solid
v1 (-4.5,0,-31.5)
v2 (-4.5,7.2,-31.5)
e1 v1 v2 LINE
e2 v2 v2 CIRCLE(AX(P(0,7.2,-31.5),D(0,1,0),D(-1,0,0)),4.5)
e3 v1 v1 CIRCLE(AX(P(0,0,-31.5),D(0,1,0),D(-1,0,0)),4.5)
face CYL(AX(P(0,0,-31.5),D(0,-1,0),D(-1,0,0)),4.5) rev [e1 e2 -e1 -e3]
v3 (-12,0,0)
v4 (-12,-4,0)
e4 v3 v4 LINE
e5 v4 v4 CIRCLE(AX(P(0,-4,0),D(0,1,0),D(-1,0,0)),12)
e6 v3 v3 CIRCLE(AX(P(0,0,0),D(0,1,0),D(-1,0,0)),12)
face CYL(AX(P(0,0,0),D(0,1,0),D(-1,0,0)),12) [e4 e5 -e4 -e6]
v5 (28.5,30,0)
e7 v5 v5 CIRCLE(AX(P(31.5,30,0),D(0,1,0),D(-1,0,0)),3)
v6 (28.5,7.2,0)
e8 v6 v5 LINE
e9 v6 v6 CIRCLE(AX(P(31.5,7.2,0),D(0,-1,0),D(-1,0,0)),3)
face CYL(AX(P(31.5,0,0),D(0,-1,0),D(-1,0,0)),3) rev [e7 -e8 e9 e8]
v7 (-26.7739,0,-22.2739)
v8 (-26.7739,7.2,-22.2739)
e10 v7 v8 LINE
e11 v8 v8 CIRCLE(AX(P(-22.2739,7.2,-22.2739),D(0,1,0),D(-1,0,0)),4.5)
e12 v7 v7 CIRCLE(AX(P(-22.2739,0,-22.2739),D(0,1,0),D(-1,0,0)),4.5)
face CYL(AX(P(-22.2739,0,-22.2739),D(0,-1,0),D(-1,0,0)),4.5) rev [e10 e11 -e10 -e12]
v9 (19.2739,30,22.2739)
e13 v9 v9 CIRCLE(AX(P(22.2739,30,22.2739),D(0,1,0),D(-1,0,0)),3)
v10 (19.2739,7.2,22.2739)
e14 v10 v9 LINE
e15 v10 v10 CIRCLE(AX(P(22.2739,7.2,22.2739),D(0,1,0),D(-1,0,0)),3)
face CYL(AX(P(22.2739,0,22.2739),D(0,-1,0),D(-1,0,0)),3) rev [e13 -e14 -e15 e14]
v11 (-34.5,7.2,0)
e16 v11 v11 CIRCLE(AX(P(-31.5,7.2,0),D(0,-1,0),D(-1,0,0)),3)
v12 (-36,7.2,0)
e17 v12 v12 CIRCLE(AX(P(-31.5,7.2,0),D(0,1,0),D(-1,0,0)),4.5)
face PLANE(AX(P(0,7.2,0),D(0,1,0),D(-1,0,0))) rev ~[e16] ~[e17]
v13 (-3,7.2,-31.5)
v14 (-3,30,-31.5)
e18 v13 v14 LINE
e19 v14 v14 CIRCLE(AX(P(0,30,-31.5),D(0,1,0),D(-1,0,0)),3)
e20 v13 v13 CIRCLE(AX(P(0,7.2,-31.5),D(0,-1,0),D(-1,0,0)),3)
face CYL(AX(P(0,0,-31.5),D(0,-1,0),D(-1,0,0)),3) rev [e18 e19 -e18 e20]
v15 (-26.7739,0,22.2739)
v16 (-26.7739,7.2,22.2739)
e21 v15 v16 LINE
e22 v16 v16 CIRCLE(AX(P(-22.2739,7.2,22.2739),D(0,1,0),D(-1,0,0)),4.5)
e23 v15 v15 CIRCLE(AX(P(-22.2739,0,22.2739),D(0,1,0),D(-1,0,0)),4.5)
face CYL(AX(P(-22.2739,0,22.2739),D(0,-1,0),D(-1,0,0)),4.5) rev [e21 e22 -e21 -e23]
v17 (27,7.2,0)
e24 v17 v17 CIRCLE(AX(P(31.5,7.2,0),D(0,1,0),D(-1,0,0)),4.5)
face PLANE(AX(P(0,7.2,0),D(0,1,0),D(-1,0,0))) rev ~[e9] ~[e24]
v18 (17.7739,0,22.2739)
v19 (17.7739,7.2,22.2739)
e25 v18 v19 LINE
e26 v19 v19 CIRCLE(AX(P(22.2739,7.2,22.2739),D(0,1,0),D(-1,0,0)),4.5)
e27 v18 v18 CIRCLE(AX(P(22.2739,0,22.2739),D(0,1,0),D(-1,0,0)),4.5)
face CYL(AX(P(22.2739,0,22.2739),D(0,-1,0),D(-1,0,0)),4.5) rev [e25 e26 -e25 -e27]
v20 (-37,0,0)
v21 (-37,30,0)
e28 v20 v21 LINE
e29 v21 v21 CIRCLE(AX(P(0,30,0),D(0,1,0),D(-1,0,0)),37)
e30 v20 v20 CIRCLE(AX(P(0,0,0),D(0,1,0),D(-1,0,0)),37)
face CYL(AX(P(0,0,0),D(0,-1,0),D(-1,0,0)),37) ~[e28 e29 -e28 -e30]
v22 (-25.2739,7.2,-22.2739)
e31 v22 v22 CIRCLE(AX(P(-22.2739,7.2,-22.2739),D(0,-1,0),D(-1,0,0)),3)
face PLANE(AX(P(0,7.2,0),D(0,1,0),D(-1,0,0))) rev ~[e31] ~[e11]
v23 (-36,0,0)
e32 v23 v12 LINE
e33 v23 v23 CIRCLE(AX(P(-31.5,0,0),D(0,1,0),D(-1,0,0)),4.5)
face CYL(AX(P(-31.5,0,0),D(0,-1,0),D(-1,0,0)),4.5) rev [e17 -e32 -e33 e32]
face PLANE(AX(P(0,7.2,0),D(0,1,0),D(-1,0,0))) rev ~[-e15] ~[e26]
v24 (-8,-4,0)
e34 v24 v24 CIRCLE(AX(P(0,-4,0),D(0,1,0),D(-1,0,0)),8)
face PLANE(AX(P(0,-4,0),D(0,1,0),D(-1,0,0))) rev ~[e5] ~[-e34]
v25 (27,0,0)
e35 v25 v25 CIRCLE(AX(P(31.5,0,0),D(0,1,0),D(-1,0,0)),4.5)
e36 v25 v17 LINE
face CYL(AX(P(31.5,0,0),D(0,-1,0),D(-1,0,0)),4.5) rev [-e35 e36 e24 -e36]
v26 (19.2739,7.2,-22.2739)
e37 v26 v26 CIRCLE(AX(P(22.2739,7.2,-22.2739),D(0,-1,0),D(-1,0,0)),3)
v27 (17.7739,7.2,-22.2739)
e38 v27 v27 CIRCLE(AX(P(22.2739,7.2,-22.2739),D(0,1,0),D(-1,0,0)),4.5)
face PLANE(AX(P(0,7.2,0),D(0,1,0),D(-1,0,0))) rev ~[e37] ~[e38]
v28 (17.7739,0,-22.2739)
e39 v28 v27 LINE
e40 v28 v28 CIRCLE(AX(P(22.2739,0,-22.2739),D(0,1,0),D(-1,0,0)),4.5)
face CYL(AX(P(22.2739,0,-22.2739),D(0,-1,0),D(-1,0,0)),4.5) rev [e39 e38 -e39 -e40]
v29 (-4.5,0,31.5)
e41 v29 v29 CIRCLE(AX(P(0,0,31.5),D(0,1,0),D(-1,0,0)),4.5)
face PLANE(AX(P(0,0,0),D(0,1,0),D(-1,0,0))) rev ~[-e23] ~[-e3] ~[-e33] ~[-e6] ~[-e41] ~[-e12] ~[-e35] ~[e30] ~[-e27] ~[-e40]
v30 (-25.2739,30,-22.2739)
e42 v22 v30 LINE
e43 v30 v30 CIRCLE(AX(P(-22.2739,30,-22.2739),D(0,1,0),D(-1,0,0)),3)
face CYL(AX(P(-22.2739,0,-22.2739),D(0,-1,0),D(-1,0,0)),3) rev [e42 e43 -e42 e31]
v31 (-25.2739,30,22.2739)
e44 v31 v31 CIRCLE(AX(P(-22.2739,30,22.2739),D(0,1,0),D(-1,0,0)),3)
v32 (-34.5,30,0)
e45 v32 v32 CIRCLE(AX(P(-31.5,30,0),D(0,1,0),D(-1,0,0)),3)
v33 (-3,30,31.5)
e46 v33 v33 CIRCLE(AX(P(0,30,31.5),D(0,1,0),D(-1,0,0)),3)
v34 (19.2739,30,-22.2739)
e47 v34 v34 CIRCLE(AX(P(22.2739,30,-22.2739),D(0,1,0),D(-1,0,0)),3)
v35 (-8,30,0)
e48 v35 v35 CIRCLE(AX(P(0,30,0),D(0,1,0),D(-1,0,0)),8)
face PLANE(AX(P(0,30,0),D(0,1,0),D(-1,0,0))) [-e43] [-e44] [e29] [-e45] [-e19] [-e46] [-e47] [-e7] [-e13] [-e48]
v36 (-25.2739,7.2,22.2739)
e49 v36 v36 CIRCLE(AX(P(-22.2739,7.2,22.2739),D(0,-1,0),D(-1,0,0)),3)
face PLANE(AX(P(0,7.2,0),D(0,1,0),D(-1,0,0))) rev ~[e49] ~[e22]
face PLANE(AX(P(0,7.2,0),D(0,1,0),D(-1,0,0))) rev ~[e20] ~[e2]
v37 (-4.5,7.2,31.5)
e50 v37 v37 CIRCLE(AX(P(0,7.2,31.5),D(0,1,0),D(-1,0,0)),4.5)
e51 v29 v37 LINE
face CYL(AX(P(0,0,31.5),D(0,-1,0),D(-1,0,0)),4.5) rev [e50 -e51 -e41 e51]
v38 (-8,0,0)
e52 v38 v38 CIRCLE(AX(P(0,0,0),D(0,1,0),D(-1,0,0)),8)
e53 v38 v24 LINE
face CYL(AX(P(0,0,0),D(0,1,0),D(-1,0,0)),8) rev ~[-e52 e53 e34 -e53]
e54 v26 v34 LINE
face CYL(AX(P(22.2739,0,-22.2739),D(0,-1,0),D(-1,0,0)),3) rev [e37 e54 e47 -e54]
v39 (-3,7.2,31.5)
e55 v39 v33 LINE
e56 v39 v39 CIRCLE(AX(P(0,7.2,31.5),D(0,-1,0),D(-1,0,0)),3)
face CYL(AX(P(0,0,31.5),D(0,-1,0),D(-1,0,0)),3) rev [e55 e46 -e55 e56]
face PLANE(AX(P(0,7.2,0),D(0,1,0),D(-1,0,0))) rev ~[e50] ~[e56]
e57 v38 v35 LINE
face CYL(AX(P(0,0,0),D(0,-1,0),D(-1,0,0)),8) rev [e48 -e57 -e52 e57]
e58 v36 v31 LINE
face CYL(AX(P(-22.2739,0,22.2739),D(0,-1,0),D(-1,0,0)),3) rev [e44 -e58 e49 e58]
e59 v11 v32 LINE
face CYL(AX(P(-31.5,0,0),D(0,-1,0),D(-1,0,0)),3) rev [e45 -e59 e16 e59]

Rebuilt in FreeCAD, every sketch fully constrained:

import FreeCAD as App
import Part
import Sketcher
from FreeCAD import Vector

doc = App.newDocument("Part")
body = doc.addObject("PartDesign::Body", "Body")

sketch1 = body.newObject("Sketcher::SketchObject", "Sketch")
sketch1.AttachmentSupport = (doc.getObject("XZ_Plane"), [""])
sketch1.MapMode = "FlatFace"
sketch1.addGeometry(Part.Circle(Vector(0, 0, 0), Vector(0, 0, 1), 37), False)
sketch1.addGeometry(Part.Circle(Vector(22.3, -22.3, 0), Vector(0, 0, 1), 3), False)
sketch1.addGeometry(Part.Circle(Vector(0, -31.5, 0), Vector(0, 0, 1), 3), False)
sketch1.addGeometry(Part.Circle(Vector(-22.3, -22.3, 0), Vector(0, 0, 1), 3), False)
sketch1.addGeometry(Part.Circle(Vector(31.5, 0, 0), Vector(0, 0, 1), 3), False)
sketch1.addGeometry(Part.Circle(Vector(22.3, 22.3, 0), Vector(0, 0, 1), 3), False)
sketch1.addGeometry(Part.Circle(Vector(0, 0, 0), Vector(0, 0, 1), 8), False)
sketch1.addGeometry(Part.Circle(Vector(-31.5, 0, 0), Vector(0, 0, 1), 3), False)
sketch1.addGeometry(Part.Circle(Vector(0, 31.5, 0), Vector(0, 0, 1), 3), False)
sketch1.addGeometry(Part.Circle(Vector(-22.3, 22.3, 0), Vector(0, 0, 1), 3), False)
sketch1.addConstraint(Sketcher.Constraint("Coincident", 0, 3, -1, 1))
sketch1.addConstraint(Sketcher.Constraint("Coincident", 6, 3, -1, 1))
sketch1.addConstraint(Sketcher.Constraint("Equal", 1, 2))
sketch1.addConstraint(Sketcher.Constraint("Equal", 2, 3))
sketch1.addConstraint(Sketcher.Constraint("Equal", 3, 4))
sketch1.addConstraint(Sketcher.Constraint("Equal", 4, 5))
sketch1.addConstraint(Sketcher.Constraint("Equal", 5, 7))
sketch1.addConstraint(Sketcher.Constraint("Equal", 7, 8))
sketch1.addConstraint(Sketcher.Constraint("Equal", 8, 9))
sketch1.addConstraint(Sketcher.Constraint("Symmetric", 3, 3, 5, 3, -1, 1))
sketch1.addConstraint(Sketcher.Constraint("Symmetric", 4, 3, 7, 3, -1, 1))
sketch1.addConstraint(Sketcher.Constraint("Symmetric", 2, 3, 8, 3, -1, 1))
sketch1.addConstraint(Sketcher.Constraint("Symmetric", 1, 3, 9, 3, -1, 1))
sketch1.addConstraint(Sketcher.Constraint("Symmetric", 1, 3, 3, 3, -2))
sketch1.addConstraint(Sketcher.Constraint("PointOnObject", 2, 3, -2))
sketch1.addConstraint(Sketcher.Constraint("PointOnObject", 4, 3, -1))
sketch1.addConstraint(Sketcher.Constraint("Diameter", 0, 74.0))
sketch1.addConstraint(Sketcher.Constraint("Diameter", 1, 6.0))
sketch1.addConstraint(Sketcher.Constraint("Diameter", 6, 16.0))
sketch1.addConstraint(Sketcher.Constraint("DistanceY", 2, 3, -1, 1, 31.5))
sketch1.addConstraint(Sketcher.Constraint("DistanceX", -1, 1, 4, 3, 31.5))
sketch1.addConstraint(Sketcher.Constraint("DistanceX", -1, 1, 1, 3, 22.274))
sketch1.addConstraint(Sketcher.Constraint("DistanceY", 1, 3, -1, 1, 22.274))
pad1 = body.newObject("PartDesign::Pad", "Pad")
pad1.Profile = sketch1
pad1.Length = 30
pad1.Reversed = True

sketch2 = body.newObject("Sketcher::SketchObject", "Sketch001")
sketch2.AttachmentSupport = (doc.getObject("XZ_Plane"), [""])
sketch2.MapMode = "FlatFace"
sketch2.addGeometry(Part.Circle(Vector(-31.5, 0, 0), Vector(0, 0, 1), 4.5), False)
sketch2.addGeometry(Part.Circle(Vector(-22.3, 22.3, 0), Vector(0, 0, 1), 4.5), False)
sketch2.addGeometry(Part.Circle(Vector(0, 31.5, 0), Vector(0, 0, 1), 4.5), False)
sketch2.addGeometry(Part.Circle(Vector(22.3, 22.3, 0), Vector(0, 0, 1), 4.5), False)
sketch2.addGeometry(Part.Circle(Vector(22.3, 22.3, 0), Vector(0, 0, 1), 3), False)
sketch2.addGeometry(Part.Circle(Vector(31.5, 0, 0), Vector(0, 0, 1), 4.5), False)
sketch2.addGeometry(Part.Circle(Vector(22.3, -22.3, 0), Vector(0, 0, 1), 4.5), False)
sketch2.addGeometry(Part.Circle(Vector(0, -31.5, 0), Vector(0, 0, 1), 4.5), False)
sketch2.addGeometry(Part.Circle(Vector(-22.3, -22.3, 0), Vector(0, 0, 1), 4.5), False)
sketch2.addConstraint(Sketcher.Constraint("Coincident", 4, 3, 3, 3))
sketch2.addConstraint(Sketcher.Constraint("Equal", 0, 1))
sketch2.addConstraint(Sketcher.Constraint("Equal", 1, 2))
sketch2.addConstraint(Sketcher.Constraint("Equal", 2, 3))
sketch2.addConstraint(Sketcher.Constraint("Equal", 3, 5))
sketch2.addConstraint(Sketcher.Constraint("Equal", 5, 6))
sketch2.addConstraint(Sketcher.Constraint("Equal", 6, 7))
sketch2.addConstraint(Sketcher.Constraint("Equal", 7, 8))
sketch2.addConstraint(Sketcher.Constraint("Symmetric", 0, 3, 5, 3, -1, 1))
sketch2.addConstraint(Sketcher.Constraint("Symmetric", 1, 3, 6, 3, -1, 1))
sketch2.addConstraint(Sketcher.Constraint("Symmetric", 2, 3, 7, 3, -1, 1))
sketch2.addConstraint(Sketcher.Constraint("Symmetric", 3, 3, 8, 3, -1, 1))
sketch2.addConstraint(Sketcher.Constraint("Symmetric", 1, 3, 3, 3, -2))
sketch2.addConstraint(Sketcher.Constraint("PointOnObject", 0, 3, -1))
sketch2.addConstraint(Sketcher.Constraint("PointOnObject", 2, 3, -2))
sketch2.addConstraint(Sketcher.Constraint("Diameter", 0, 9.0))
sketch2.addConstraint(Sketcher.Constraint("Diameter", 4, 6.0))
sketch2.addConstraint(Sketcher.Constraint("DistanceX", 0, 3, 5, 3, 63.0))
sketch2.addConstraint(Sketcher.Constraint("DistanceY", -1, 1, 2, 3, 31.5))
sketch2.addConstraint(Sketcher.Constraint("DistanceX", 1, 3, -1, 1, 22.274))
sketch2.addConstraint(Sketcher.Constraint("DistanceY", -1, 1, 1, 3, 22.274))
pocket1 = body.newObject("PartDesign::Pocket", "Pocket")
pocket1.Profile = sketch2
pocket1.Length = 7.2

sketch3 = body.newObject("Sketcher::SketchObject", "Sketch002")
sketch3.AttachmentSupport = (doc.getObject("XZ_Plane"), [""])
sketch3.MapMode = "FlatFace"
sketch3.addGeometry(Part.Circle(Vector(0, 0, 0), Vector(0, 0, 1), 12), False)
sketch3.addGeometry(Part.Circle(Vector(0, 0, 0), Vector(0, 0, 1), 8), False)
sketch3.addConstraint(Sketcher.Constraint("Coincident", 0, 3, -1, 1))
sketch3.addConstraint(Sketcher.Constraint("Coincident", 1, 3, -1, 1))
sketch3.addConstraint(Sketcher.Constraint("Diameter", 0, 24.0))
sketch3.addConstraint(Sketcher.Constraint("Diameter", 1, 16.0))
pad2 = body.newObject("PartDesign::Pad", "Pad001")
pad2.Profile = sketch3
pad2.Length = 4

doc.recompute()
